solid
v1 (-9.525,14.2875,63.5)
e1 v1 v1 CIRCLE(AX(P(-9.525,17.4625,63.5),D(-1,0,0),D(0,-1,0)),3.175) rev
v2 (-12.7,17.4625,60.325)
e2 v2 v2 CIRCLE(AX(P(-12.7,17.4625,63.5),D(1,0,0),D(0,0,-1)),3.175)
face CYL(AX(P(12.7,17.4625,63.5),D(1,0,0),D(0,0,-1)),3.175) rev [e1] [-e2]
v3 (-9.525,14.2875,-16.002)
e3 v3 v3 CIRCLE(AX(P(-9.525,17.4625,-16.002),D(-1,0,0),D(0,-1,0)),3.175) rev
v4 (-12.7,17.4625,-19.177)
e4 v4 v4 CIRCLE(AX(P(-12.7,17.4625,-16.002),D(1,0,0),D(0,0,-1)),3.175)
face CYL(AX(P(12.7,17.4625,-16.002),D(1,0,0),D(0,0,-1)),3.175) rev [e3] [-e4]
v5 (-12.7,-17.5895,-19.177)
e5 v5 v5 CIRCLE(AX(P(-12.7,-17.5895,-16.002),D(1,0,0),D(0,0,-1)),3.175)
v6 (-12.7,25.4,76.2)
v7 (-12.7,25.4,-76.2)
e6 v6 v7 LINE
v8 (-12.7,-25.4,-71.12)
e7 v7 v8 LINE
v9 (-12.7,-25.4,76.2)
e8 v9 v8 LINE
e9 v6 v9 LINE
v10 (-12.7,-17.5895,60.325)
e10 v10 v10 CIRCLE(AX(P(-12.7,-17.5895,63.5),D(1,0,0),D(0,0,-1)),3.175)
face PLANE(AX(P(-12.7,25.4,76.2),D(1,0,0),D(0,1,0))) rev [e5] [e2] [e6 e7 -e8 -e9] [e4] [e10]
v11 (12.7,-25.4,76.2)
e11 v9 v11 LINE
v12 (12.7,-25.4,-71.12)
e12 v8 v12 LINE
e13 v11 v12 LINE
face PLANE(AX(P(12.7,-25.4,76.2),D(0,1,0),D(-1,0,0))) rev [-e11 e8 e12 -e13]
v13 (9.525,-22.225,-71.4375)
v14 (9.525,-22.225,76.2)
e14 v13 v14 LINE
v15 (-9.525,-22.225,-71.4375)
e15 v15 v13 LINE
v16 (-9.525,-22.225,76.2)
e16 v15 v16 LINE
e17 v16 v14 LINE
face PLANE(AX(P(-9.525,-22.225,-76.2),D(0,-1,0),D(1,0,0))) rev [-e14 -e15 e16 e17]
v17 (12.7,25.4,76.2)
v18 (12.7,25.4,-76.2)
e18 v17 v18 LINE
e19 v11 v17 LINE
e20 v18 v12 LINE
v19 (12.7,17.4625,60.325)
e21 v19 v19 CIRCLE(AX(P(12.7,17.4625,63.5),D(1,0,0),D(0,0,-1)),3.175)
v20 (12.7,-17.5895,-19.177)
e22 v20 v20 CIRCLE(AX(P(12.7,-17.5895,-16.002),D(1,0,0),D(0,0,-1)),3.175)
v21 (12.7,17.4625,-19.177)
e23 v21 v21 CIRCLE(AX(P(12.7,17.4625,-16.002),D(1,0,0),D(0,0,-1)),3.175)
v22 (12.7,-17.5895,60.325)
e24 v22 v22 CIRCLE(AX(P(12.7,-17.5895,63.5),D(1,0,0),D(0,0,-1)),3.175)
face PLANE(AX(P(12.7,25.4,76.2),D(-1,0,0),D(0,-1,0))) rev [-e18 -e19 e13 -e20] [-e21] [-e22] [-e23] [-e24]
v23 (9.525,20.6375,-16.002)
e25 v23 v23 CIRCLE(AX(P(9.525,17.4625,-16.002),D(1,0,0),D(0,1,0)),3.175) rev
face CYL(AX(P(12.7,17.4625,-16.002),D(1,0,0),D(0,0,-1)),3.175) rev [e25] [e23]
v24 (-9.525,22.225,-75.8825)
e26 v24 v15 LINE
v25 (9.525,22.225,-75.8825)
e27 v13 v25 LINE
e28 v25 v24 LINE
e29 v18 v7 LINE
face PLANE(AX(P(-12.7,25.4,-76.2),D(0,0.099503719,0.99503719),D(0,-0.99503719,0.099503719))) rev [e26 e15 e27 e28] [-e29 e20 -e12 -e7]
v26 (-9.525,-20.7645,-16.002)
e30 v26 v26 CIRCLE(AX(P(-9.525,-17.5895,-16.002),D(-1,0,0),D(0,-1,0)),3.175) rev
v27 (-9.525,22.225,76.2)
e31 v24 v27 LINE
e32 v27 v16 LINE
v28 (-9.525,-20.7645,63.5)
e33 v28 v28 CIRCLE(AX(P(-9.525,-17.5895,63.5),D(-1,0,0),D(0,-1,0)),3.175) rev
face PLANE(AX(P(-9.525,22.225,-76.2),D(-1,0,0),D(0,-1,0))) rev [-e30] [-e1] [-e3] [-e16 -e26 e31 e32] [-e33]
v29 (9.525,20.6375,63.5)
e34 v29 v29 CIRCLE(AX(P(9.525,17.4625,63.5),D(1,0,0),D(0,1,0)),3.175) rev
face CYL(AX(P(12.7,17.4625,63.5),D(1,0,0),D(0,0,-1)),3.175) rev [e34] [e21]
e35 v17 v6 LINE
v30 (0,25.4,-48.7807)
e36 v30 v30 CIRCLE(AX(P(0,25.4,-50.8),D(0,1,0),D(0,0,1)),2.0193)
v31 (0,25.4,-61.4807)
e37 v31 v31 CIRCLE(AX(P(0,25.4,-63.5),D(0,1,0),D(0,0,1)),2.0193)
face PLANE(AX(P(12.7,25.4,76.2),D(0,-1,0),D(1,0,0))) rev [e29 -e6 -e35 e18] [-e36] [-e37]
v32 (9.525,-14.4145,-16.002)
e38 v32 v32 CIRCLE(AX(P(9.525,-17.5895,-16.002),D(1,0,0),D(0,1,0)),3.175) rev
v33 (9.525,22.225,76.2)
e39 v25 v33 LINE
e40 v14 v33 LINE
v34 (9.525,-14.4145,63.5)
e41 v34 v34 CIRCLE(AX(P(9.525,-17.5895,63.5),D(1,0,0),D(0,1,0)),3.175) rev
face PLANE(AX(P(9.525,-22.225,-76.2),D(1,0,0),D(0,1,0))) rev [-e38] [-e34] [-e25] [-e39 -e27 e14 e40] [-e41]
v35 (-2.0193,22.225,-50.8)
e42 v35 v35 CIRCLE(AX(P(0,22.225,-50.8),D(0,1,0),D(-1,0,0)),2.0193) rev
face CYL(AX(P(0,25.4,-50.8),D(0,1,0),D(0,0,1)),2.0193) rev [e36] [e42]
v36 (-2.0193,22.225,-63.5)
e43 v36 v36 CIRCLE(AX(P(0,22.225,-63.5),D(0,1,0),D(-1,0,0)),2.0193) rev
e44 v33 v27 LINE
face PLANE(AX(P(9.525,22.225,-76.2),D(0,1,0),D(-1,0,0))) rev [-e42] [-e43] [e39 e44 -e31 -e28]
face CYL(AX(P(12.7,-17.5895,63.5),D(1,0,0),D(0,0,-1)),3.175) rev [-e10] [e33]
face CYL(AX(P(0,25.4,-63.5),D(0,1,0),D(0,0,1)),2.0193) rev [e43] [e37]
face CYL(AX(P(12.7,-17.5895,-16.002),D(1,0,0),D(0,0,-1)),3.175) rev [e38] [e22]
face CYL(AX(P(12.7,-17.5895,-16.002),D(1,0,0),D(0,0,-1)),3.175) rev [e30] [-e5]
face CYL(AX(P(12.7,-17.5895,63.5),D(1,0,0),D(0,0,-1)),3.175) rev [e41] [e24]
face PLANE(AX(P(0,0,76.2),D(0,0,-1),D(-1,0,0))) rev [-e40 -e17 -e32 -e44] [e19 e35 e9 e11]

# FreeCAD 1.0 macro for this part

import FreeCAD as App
import Part
import Sketcher
from FreeCAD import Vector
Q = App.Units.Quantity


def add_polygon(sketch, points):
    """Adds a closed chain of lines whose ends are joined by coincident constraints."""
    first, n = sketch.GeometryCount, len(points)
    for a, b in zip(points, points[1:] + points[:1]):
        sketch.addGeometry(Part.LineSegment(App.Vector(*a, 0), App.Vector(*b, 0)), False)
    for i in range(n):
        sketch.addConstraint(Sketcher.Constraint("Coincident", first + i, 2, first + (i + 1) % n, 1))

doc = App.newDocument("Part")
body = doc.addObject("PartDesign::Body", "Body")

sketch1 = body.newObject("Sketcher::SketchObject", "Sketch")
sketch1.AttachmentSupport = (doc.getObject("XY_Plane"), [""])
sketch1.MapMode = "FlatFace"
add_polygon(sketch1, [(-13, 25), (-13, -25), (13, -25), (13, 25)])
sketch1.addConstraint([
    Sketcher.Constraint("Vertical", 0),
    Sketcher.Constraint("Horizontal", 1),
    Sketcher.Constraint("Vertical", 2),
    Sketcher.Constraint("Horizontal", 3),
    Sketcher.Constraint("Symmetric", 0, 2, 2, 2, -1, 1),
    Sketcher.Constraint("DistanceX", 1, 1, 1, 2, Q("1 in")),
    Sketcher.Constraint("DistanceY", 0, 2, 0, 1, Q("2 in")),
])
pad1 = body.newObject("PartDesign::Pad", "Pad")
pad1.Profile = sketch1
pad1.Length = Q("6 in")
pad1.Midplane = True

sketch2 = body.newObject("Sketcher::SketchObject", "Sketch001")
sketch2.AttachmentSupport = (doc.getObject("YZ_Plane"), [""])
sketch2.MapMode = "FlatFace"
sketch2.AttachmentOffset = App.Placement(Vector(0, 0, 0.5 * 25.4), App.Rotation())
sketch2.addGeometry([
    Part.Circle(Vector(17.5, 63.5, 0), Vector(0, 0, 1), 3.2),
    Part.Circle(Vector(17.5, -16, 0), Vector(0, 0, 1), 3.2),
    Part.Circle(Vector(-17.6, -16, 0), Vector(0, 0, 1), 3.2),
    Part.Circle(Vector(-17.6, 63.5, 0), Vector(0, 0, 1), 3.2),
], False)
sketch2.addConstraint([
    Sketcher.Constraint("Equal", 0, 1),
    Sketcher.Constraint("Equal", 1, 2),
    Sketcher.Constraint("Equal", 2, 3),
    Sketcher.Constraint("Horizontal", 1, 3, 2, 3),
    Sketcher.Constraint("Horizontal", 0, 3, 3, 3),
    Sketcher.Constraint("Vertical", 0, 3, 1, 3),
    Sketcher.Constraint("Vertical", 2, 3, 3, 3),
    Sketcher.Constraint("Diameter", 0, Q("0.25 in")),
    Sketcher.Constraint("DistanceY", -1, 1, 0, 3, Q("2.5 in")),
    Sketcher.Constraint("DistanceY", 1, 3, -1, 1, Q("0.63 in")),
    Sketcher.Constraint("DistanceX", 2, 3, 1, 3, Q("1.38 in")),
    Sketcher.Constraint("DistanceX", -1, 1, 0, 3, Q("0.6875 in")),
])
doc.recompute()
hole = body.newObject("PartDesign::Hole", "Hole")
hole.Profile = sketch2
hole.ThreadType = "None"
hole.Diameter = Q("0.25 in")
hole.DepthType = "ThroughAll"

sketch3 = body.newObject("Sketcher::SketchObject", "Sketch002")
sketch3.AttachmentSupport = (doc.getObject("XZ_Plane"), [""])
sketch3.MapMode = "FlatFace"
sketch3.AttachmentOffset = App.Placement(Vector(0, 0, -1 * 25.4), App.Rotation())
sketch3.addGeometry([
    Part.Circle(Vector(0, -63.5, 0), Vector(0, 0, 1), 2),
    Part.Circle(Vector(0, -50.8, 0), Vector(0, 0, 1), 2),
], False)
sketch3.addConstraint([
    Sketcher.Constraint("Equal", 0, 1),
    Sketcher.Constraint("PointOnObject", 0, 3, -2),
    Sketcher.Constraint("PointOnObject", 1, 3, -2),
    Sketcher.Constraint("Diameter", 0, Q("0.159 in")),
    Sketcher.Constraint("DistanceY", 1, 3, -1, 1, Q("2 in")),
    Sketcher.Constraint("DistanceY", 0, 3, -1, 1, Q("2.5 in")),
])
doc.recompute()
hole2 = body.newObject("PartDesign::Hole", "Hole001")
hole2.Profile = sketch3
hole2.ThreadType = "None"
hole2.Diameter = Q("0.159 in")
hole2.DepthType = "Dimension"
hole2.Depth = Q("0.54 in")
hole2.DrillPoint = "Angled"
hole2.DrillPointAngle = 118
hole2.Reversed = True

sketch4 = body.newObject("Sketcher::SketchObject", "Sketch003")
sketch4.AttachmentSupport = (doc.getObject("YZ_Plane"), [""])
sketch4.MapMode = "FlatFace"
sketch4.AttachmentOffset = App.Placement(Vector(0, 0, 0.5 * 25.4), App.Rotation())
add_polygon(sketch4, [(25, -76), (-25, -71), (-25, -76)])
sketch4.addConstraint([
    Sketcher.Constraint("Vertical", 1),
    Sketcher.Constraint("Horizontal", 2),
    Sketcher.Constraint("DistanceX", 2, 1, 2, 2, Q("2 in")),
    Sketcher.Constraint("DistanceY", 1, 2, 1, 1, Q("0.2 in")),
    Sketcher.Constraint("DistanceX", 0, 2, -1, 1, Q("1 in")),
    Sketcher.Constraint("DistanceY", 1, 2, -1, 1, Q("3 in")),
])
pocket1 = body.newObject("PartDesign::Pocket", "Pocket")
pocket1.Profile = sketch4
pocket1.Type = "ThroughAll"

sketch5 = body.newObject("Sketcher::SketchObject", "Sketch004")
sketch5.AttachmentSupport = (doc.getObject("XY_Plane"), [""])
sketch5.MapMode = "FlatFace"
sketch5.AttachmentOffset = App.Placement(Vector(0, 0, 3 * 25.4), App.Rotation())
add_polygon(sketch5, [(-10, 22), (-10, -22), (10, -22), (10, 22)])
sketch5.addConstraint([
    Sketcher.Constraint("Vertical", 0),
    Sketcher.Constraint("Horizontal", 1),
    Sketcher.Constraint("Vertical", 2),
    Sketcher.Constraint("Horizontal", 3),
    Sketcher.Constraint("Symmetric", 0, 2, 2, 2, -1, 1),
    Sketcher.Constraint("DistanceX", 1, 1, 1, 2, Q("0.75 in")),
    Sketcher.Constraint("DistanceY", 0, 2, 0, 1, Q("1.75 in")),
])
pocket2 = body.newObject("PartDesign::Pocket", "Pocket001")
pocket2.Profile = sketch5
pocket2.Type = "ThroughAll"

doc.recompute()
